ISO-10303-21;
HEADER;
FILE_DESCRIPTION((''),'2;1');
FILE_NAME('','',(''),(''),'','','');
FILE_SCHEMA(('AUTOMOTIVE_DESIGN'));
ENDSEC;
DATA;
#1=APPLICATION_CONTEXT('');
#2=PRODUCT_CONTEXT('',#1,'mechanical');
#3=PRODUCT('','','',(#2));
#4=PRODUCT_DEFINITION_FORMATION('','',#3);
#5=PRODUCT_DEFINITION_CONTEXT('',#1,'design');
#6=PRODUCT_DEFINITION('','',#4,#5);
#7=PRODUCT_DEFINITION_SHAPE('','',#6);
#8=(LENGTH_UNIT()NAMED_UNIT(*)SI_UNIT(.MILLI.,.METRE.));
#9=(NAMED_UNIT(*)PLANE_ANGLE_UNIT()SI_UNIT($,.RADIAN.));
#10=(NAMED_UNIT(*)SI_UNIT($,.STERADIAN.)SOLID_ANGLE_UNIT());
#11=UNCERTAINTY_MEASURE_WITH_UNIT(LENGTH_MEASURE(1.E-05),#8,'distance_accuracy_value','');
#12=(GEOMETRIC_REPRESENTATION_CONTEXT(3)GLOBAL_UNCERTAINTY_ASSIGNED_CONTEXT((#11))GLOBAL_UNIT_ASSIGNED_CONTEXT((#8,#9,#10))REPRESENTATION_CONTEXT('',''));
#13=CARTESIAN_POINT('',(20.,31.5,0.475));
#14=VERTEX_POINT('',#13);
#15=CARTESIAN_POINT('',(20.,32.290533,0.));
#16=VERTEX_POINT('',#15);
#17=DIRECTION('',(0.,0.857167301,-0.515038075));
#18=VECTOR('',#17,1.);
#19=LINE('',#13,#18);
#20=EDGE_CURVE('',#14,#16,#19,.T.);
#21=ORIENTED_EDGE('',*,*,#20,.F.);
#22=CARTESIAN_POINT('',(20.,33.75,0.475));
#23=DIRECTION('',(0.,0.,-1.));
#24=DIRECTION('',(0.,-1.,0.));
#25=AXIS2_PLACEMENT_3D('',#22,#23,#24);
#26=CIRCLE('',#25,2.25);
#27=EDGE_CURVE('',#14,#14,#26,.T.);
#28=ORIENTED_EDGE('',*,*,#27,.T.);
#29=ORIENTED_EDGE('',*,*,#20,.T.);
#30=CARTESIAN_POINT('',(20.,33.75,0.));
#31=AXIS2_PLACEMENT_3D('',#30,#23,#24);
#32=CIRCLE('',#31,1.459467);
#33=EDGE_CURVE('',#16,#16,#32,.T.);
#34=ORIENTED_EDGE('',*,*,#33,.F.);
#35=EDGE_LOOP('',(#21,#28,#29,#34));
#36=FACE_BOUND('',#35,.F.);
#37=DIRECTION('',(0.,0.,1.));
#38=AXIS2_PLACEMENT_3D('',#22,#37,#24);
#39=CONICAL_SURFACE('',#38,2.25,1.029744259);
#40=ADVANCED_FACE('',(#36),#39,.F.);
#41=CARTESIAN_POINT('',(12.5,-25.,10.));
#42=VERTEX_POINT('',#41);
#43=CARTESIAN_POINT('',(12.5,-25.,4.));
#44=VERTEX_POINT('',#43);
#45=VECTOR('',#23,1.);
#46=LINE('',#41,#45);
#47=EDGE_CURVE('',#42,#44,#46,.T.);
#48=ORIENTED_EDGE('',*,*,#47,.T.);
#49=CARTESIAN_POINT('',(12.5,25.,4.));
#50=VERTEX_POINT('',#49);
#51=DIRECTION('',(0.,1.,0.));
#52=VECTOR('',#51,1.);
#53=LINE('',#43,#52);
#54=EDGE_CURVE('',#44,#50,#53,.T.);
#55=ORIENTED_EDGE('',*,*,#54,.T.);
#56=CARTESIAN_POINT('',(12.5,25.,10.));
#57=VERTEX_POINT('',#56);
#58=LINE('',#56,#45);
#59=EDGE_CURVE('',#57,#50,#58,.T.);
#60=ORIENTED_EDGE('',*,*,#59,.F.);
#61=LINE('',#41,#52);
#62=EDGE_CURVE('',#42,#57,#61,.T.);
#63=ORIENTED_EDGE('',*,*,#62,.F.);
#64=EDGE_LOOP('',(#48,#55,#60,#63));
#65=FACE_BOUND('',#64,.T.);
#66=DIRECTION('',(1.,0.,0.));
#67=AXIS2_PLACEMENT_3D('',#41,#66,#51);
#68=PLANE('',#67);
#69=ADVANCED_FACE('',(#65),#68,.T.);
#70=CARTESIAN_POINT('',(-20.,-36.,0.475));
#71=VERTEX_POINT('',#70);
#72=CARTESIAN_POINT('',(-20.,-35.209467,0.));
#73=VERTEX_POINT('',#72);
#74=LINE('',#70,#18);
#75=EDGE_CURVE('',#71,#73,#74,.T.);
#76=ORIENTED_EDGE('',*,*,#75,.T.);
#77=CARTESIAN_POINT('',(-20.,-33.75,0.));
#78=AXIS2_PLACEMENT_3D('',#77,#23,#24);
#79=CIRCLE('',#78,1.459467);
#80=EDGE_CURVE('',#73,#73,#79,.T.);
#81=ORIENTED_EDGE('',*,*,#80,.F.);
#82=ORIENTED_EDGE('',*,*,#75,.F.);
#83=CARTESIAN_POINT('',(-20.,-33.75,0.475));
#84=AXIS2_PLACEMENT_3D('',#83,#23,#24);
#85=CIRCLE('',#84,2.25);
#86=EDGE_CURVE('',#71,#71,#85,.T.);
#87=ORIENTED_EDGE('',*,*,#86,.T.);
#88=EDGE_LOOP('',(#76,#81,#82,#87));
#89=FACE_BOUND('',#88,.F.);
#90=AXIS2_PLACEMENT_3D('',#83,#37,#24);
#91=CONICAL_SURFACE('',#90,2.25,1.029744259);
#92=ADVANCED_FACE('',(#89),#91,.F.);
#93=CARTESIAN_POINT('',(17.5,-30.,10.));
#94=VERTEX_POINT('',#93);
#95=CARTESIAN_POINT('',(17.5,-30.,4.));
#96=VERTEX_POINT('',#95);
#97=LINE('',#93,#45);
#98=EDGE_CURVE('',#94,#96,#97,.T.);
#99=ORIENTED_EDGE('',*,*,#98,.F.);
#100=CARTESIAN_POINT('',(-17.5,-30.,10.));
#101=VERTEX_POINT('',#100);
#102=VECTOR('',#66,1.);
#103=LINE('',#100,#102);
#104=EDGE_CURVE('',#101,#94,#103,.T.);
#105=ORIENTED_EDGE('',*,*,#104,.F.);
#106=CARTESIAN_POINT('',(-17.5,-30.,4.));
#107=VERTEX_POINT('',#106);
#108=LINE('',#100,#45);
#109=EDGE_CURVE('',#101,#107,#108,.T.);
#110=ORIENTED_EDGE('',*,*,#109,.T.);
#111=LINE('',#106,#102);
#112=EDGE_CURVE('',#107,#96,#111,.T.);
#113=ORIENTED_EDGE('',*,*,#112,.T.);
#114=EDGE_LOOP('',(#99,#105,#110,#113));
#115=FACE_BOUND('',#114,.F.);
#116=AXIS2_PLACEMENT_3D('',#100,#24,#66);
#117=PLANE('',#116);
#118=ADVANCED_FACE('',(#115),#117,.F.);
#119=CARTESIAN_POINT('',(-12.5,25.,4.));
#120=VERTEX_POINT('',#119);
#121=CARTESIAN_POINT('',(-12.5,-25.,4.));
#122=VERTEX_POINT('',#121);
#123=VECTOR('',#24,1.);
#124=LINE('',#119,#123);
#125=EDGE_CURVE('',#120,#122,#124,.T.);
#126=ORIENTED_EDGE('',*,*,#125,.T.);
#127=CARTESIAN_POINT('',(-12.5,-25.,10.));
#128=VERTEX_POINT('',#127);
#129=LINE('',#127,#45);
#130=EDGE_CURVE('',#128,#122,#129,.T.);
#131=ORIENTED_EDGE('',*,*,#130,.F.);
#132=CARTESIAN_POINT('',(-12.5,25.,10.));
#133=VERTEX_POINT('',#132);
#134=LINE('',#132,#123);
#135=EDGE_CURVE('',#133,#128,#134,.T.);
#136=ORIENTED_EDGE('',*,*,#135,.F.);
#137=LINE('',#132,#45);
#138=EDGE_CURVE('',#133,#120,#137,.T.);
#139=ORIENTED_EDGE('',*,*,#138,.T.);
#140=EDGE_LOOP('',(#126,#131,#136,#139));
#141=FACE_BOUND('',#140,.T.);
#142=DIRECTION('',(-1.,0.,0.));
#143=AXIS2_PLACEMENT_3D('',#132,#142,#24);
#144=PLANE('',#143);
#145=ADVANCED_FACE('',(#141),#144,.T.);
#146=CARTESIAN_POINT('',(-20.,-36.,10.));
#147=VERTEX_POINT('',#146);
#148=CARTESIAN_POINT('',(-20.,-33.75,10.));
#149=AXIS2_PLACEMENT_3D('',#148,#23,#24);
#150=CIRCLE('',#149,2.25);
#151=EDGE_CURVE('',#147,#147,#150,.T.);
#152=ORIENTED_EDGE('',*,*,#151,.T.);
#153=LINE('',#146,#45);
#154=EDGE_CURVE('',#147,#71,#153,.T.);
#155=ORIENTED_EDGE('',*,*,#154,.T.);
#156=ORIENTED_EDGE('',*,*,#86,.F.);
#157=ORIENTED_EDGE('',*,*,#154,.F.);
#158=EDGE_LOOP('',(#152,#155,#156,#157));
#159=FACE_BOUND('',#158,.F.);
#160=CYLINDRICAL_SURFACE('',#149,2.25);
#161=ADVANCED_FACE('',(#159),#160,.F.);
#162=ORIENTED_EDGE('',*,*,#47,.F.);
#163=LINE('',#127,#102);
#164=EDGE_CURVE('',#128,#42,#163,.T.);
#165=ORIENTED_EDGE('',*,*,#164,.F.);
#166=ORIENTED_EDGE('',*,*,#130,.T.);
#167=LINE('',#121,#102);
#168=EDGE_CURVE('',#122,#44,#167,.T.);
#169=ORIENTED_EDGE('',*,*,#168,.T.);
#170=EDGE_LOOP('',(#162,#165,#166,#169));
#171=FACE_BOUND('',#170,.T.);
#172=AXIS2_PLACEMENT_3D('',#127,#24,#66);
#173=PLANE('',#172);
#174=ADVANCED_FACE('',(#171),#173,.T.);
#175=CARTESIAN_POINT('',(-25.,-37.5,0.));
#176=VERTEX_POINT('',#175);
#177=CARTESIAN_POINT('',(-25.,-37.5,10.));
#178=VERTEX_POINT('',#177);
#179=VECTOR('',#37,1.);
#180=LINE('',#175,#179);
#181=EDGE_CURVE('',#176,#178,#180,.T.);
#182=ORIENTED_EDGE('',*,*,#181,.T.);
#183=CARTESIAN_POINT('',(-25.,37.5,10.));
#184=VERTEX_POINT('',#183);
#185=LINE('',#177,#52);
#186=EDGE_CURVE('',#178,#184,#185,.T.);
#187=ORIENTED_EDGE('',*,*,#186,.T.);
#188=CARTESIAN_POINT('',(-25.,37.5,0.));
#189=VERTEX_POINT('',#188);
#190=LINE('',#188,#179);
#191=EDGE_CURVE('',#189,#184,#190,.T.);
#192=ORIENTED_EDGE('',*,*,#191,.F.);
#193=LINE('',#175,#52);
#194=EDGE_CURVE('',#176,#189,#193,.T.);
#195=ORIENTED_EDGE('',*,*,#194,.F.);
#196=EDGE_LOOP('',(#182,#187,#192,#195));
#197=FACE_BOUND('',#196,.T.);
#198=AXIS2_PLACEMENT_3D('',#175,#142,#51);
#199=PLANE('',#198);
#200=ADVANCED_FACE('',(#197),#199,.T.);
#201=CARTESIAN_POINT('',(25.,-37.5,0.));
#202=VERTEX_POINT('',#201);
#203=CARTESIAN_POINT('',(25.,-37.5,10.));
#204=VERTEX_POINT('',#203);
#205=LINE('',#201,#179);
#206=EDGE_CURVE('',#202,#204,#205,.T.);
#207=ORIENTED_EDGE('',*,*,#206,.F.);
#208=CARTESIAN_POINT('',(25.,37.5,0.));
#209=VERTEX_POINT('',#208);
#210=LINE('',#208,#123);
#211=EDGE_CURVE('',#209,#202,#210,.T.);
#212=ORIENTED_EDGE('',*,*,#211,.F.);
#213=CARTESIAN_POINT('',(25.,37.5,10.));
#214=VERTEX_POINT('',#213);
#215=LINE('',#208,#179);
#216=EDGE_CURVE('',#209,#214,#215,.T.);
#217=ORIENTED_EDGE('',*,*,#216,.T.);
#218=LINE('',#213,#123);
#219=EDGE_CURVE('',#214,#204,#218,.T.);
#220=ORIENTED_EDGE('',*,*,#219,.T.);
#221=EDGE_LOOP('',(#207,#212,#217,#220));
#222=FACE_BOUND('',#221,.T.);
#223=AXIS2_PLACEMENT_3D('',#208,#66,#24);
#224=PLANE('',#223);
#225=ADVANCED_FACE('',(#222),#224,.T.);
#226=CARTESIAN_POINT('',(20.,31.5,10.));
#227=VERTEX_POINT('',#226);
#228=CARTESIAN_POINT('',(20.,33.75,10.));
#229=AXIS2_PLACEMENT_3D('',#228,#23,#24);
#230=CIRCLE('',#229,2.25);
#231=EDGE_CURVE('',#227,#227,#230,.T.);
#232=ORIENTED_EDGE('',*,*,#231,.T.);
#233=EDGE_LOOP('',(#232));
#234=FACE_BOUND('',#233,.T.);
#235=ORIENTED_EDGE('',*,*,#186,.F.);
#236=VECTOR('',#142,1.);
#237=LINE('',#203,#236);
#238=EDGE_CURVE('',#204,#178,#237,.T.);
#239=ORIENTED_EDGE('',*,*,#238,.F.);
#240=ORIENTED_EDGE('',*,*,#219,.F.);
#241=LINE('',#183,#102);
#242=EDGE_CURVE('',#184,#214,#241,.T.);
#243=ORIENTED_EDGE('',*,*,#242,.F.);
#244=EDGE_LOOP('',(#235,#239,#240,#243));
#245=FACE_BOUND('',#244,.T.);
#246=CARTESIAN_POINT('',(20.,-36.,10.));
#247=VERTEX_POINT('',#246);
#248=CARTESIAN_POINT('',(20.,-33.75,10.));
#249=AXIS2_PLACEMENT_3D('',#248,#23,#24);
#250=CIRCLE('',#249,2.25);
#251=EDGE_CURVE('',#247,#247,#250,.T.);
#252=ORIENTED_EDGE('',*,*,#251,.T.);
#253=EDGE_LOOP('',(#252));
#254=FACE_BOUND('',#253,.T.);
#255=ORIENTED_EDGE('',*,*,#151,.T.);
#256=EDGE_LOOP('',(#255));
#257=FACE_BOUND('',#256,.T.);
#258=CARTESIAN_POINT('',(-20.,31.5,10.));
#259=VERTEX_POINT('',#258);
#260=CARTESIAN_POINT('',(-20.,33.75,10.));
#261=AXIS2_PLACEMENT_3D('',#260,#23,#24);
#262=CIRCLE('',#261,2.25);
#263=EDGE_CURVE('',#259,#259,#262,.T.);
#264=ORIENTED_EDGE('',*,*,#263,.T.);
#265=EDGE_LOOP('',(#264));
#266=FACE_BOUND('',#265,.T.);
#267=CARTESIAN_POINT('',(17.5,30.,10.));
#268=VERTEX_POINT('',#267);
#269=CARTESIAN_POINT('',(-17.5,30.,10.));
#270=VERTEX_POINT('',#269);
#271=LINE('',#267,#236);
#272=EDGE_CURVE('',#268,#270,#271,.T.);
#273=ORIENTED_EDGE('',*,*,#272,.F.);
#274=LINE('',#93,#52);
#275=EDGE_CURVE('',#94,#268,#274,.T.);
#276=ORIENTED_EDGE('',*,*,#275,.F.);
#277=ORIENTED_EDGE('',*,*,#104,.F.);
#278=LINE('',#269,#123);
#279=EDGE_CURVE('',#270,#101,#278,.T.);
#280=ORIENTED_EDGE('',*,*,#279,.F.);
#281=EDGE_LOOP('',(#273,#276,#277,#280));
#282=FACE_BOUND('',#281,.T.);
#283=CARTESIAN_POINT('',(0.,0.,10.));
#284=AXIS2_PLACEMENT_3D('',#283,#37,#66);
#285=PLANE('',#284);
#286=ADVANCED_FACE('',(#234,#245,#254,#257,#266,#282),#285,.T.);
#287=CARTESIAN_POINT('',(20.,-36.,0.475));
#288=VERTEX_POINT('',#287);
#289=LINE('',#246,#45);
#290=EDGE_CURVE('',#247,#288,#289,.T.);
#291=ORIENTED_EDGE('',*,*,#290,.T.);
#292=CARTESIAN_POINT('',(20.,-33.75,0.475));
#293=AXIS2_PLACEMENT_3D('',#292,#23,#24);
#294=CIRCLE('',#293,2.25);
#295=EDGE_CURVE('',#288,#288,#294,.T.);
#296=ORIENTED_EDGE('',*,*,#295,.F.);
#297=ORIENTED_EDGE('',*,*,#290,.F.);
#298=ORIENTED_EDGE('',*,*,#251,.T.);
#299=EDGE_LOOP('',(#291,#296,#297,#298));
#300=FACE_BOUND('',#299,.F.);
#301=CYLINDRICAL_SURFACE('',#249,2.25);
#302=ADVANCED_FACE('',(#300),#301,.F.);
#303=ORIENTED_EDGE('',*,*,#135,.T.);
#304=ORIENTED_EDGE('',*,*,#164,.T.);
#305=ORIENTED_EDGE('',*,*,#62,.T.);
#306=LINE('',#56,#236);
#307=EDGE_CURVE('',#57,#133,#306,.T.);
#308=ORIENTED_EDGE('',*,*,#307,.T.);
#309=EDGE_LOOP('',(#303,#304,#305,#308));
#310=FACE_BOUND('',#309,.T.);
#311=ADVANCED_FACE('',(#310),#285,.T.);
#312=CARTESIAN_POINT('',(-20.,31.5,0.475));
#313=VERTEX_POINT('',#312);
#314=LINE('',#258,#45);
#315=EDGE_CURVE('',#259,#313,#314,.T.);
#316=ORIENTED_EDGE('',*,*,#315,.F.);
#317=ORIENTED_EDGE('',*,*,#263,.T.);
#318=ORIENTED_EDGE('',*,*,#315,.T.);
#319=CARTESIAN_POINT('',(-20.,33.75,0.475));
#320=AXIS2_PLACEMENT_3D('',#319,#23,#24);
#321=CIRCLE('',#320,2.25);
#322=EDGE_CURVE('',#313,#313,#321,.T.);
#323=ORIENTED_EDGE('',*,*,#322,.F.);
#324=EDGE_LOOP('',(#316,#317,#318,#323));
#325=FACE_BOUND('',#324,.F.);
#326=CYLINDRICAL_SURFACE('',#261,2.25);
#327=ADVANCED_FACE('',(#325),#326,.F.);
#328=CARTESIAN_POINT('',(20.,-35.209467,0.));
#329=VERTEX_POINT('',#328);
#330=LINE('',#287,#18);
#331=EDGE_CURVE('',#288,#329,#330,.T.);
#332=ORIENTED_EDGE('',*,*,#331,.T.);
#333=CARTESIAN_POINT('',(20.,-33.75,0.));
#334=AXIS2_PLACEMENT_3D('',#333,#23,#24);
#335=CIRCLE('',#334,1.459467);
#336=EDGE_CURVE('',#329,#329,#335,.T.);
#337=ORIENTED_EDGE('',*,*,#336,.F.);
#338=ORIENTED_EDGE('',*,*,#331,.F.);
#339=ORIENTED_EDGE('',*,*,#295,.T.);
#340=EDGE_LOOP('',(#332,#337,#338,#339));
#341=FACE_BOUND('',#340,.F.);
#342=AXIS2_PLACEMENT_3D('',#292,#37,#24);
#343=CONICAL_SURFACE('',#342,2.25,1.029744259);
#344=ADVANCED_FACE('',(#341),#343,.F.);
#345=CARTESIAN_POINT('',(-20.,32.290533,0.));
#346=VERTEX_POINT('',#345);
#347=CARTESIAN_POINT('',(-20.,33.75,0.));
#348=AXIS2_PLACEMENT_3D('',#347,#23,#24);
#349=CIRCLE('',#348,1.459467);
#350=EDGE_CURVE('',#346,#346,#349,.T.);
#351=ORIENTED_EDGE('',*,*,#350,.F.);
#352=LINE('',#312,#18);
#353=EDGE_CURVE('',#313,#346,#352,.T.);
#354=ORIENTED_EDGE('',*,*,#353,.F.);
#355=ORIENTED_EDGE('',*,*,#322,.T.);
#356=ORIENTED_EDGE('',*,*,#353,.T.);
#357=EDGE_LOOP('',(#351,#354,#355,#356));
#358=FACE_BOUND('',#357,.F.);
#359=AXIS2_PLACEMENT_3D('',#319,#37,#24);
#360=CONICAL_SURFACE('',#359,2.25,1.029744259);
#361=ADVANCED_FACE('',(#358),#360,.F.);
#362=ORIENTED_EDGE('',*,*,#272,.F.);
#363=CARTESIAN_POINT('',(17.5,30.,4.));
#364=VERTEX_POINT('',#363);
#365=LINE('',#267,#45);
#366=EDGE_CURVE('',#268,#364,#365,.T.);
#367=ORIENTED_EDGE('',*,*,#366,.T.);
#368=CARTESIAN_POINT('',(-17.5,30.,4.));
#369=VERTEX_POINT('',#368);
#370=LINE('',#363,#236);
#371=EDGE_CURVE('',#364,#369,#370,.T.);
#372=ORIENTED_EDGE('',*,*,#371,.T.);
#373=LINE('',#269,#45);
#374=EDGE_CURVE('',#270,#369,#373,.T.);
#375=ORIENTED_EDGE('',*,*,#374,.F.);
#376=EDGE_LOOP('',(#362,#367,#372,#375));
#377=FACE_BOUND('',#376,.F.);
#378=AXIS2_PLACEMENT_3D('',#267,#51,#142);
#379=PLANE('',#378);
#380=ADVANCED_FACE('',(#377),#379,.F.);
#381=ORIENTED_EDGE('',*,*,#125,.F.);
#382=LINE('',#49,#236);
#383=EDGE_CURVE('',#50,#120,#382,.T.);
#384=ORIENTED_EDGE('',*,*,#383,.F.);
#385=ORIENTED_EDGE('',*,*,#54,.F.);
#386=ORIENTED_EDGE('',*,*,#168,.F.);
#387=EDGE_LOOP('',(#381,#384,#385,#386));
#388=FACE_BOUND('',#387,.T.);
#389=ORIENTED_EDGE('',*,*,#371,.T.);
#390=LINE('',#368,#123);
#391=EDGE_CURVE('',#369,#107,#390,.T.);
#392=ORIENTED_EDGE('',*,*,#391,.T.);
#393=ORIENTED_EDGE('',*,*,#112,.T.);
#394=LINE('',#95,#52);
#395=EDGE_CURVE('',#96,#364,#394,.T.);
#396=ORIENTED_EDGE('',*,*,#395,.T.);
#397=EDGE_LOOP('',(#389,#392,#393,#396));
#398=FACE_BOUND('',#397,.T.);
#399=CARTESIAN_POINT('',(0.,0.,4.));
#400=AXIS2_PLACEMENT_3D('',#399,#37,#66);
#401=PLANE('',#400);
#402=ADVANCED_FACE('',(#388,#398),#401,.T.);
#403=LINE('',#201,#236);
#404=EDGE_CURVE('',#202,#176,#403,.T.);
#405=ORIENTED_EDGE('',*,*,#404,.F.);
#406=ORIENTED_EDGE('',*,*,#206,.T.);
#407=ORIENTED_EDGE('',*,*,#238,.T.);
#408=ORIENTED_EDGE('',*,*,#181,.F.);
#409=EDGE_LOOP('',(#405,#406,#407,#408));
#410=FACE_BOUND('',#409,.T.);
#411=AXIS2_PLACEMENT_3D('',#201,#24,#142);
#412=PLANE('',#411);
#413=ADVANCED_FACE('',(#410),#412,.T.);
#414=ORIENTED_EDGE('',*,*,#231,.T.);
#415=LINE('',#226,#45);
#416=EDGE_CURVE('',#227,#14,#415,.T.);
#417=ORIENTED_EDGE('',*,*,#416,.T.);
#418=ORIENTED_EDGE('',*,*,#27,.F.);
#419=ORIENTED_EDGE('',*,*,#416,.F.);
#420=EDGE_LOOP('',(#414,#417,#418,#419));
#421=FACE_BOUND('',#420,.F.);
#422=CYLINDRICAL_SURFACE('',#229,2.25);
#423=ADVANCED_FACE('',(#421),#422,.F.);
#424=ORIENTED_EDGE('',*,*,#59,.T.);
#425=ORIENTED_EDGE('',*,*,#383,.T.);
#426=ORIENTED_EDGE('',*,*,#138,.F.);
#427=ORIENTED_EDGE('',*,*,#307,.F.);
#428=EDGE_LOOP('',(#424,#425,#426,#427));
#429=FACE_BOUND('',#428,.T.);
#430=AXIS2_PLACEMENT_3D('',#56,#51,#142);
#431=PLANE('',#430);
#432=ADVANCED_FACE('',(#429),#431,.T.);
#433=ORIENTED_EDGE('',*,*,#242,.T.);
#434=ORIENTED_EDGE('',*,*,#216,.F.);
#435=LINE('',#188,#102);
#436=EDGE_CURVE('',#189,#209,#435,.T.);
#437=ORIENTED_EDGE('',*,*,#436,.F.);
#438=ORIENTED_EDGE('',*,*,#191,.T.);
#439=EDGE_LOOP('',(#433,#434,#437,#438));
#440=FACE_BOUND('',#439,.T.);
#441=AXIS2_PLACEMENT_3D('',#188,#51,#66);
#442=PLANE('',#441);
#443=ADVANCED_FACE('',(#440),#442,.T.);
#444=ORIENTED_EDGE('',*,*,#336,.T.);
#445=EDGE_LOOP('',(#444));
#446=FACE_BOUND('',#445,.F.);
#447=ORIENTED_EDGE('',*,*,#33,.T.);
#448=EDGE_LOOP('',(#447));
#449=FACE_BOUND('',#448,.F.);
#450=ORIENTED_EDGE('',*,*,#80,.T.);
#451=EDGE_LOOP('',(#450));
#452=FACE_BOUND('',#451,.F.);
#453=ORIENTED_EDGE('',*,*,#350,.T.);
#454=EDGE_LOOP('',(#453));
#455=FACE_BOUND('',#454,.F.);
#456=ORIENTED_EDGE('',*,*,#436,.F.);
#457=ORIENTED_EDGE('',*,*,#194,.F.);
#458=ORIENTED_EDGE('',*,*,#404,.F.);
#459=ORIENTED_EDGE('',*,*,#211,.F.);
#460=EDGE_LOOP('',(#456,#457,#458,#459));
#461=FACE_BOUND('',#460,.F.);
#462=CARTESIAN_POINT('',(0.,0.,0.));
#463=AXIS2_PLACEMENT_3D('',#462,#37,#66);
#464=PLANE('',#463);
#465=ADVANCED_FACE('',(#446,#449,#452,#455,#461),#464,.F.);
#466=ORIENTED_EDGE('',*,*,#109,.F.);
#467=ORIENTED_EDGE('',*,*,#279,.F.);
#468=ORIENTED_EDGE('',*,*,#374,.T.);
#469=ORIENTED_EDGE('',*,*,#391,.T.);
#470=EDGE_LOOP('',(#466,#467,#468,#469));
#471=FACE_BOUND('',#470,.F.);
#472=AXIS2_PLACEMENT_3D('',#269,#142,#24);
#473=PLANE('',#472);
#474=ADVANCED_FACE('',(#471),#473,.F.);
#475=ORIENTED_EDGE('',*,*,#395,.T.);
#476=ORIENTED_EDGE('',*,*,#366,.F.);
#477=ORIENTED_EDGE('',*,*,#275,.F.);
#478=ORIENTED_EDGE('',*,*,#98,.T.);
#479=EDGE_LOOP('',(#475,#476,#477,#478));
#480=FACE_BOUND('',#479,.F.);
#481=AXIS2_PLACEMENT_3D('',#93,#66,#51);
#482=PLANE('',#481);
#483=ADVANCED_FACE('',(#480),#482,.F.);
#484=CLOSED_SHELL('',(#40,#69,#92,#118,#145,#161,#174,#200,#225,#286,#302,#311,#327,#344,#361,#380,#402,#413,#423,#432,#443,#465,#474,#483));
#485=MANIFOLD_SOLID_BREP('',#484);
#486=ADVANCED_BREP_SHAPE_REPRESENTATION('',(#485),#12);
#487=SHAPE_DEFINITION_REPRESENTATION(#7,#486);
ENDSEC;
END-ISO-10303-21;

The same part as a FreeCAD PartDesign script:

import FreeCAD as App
import Part
import Sketcher
Q = App.Units.Quantity


def add_polygon(sketch, points):
    """Adds a closed chain of lines whose ends are joined by coincident constraints."""
    first, n = sketch.GeometryCount, len(points)
    for a, b in zip(points, points[1:] + points[:1]):
        sketch.addGeometry(Part.LineSegment(App.Vector(*a, 0), App.Vector(*b, 0)), False)
    for i in range(n):
        sketch.addConstraint(Sketcher.Constraint("Coincident", first + i, 2, first + (i + 1) % n, 1))

doc = App.newDocument("Part")
body = doc.addObject("PartDesign::Body", "Body")

# Sketch on XY plane
sketch1 = body.newObject("Sketcher::SketchObject", "Sketch")
sketch1.AttachmentSupport = (doc.getObject("XY_Plane"), [""])
sketch1.MapMode = "FlatFace"
add_polygon(sketch1, [(25, 38), (-25, 38), (-25, -38), (25, -38)])  # lines 0-3
sketch1.addConstraint([
    Sketcher.Constraint("Horizontal", 0),
    Sketcher.Constraint("Vertical", 1),
    Sketcher.Constraint("Horizontal", 2),
    Sketcher.Constraint("Vertical", 3),
    Sketcher.Constraint("Symmetric", 0, 2, 2, 2, -1, 1),
    Sketcher.Constraint("DistanceX", 0, 2, 0, 1, Q("50 mm")),
    Sketcher.Constraint("DistanceY", 1, 2, 1, 1, Q("75 mm")),
])
pad1 = body.newObject("PartDesign::Pad", "Pad")
pad1.Profile = sketch1
pad1.Length = 10

# Sketch on XY plane
sketch2 = body.newObject("Sketcher::SketchObject", "Sketch001")
sketch2.AttachmentSupport = (doc.getObject("XY_Plane"), [""])
sketch2.MapMode = "FlatFace"
sketch2.AttachmentOffset = App.Placement(App.Vector(0, 0, 10), App.Rotation())
sketch2.addGeometry([
    Part.Circle(App.Vector(20, -33.8, 0), App.Vector(0, 0, 1), 2.2),
    Part.Circle(App.Vector(-20, -33.8, 0), App.Vector(0, 0, 1), 2.2),
    Part.Circle(App.Vector(-20, 33.8, 0), App.Vector(0, 0, 1), 2.2),
    Part.Circle(App.Vector(20, 33.8, 0), App.Vector(0, 0, 1), 2.2),
], False)
sketch2.addConstraint([
    Sketcher.Constraint("Equal", 0, 1),
    Sketcher.Constraint("Equal", 1, 2),
    Sketcher.Constraint("Equal", 2, 3),
    Sketcher.Constraint("Symmetric", 0, 3, 2, 3, -1, 1),
    Sketcher.Constraint("Symmetric", 1, 3, 3, 3, -1, 1),
    Sketcher.Constraint("Symmetric", 0, 3, 1, 3, -2),
    Sketcher.Constraint("Diameter", 0, Q("4.5 mm")),
    Sketcher.Constraint("DistanceX", -1, 1, 0, 3, Q("20 mm")),
    Sketcher.Constraint("DistanceY", 1, 3, 2, 3, Q("67.5 mm")),
])
doc.recompute()
hole = body.newObject("PartDesign::Hole", "Hole")
hole.Profile = sketch2
hole.ThreadType = "None"
hole.Diameter = 4.5
hole.DepthType = "Dimension"
hole.Depth = 9.525
hole.DrillPoint = "Angled"
hole.DrillPointAngle = 118

# Sketch on XY plane
sketch3 = body.newObject("Sketcher::SketchObject", "Sketch002")
sketch3.AttachmentSupport = (doc.getObject("XY_Plane"), [""])
sketch3.MapMode = "FlatFace"
sketch3.AttachmentOffset = App.Placement(App.Vector(0, 0, 10), App.Rotation())
add_polygon(sketch3, [(-18, 30), (-18, -30), (18, -30), (18, 30)])  # lines 0-3
add_polygon(sketch3, [(12, -25), (-12, -25), (-12, 25), (12, 25)])  # lines 4-7
sketch3.addConstraint([
    Sketcher.Constraint("Vertical", 0),
    Sketcher.Constraint("Horizontal", 1),
    Sketcher.Constraint("Vertical", 2),
    Sketcher.Constraint("Horizontal", 3),
    Sketcher.Constraint("Horizontal", 4),
    Sketcher.Constraint("Vertical", 5),
    Sketcher.Constraint("Horizontal", 6),
    Sketcher.Constraint("Vertical", 7),
    Sketcher.Constraint("Symmetric", 0, 2, 2, 2, -1, 1),
    Sketcher.Constraint("Symmetric", 4, 2, 6, 2, -1, 1),
    Sketcher.Constraint("DistanceX", 1, 1, 1, 2, Q("35 mm")),
    Sketcher.Constraint("DistanceY", 0, 2, 0, 1, Q("60 mm")),
    Sketcher.Constraint("DistanceX", 0, 2, 4, 2, Q("5 mm")),
    Sketcher.Constraint("DistanceY", 0, 2, 4, 2, Q("5 mm")),
])
pocket1 = body.newObject("PartDesign::Pocket", "Pocket")
pocket1.Profile = sketch3
pocket1.Length = 6

doc.recompute()
